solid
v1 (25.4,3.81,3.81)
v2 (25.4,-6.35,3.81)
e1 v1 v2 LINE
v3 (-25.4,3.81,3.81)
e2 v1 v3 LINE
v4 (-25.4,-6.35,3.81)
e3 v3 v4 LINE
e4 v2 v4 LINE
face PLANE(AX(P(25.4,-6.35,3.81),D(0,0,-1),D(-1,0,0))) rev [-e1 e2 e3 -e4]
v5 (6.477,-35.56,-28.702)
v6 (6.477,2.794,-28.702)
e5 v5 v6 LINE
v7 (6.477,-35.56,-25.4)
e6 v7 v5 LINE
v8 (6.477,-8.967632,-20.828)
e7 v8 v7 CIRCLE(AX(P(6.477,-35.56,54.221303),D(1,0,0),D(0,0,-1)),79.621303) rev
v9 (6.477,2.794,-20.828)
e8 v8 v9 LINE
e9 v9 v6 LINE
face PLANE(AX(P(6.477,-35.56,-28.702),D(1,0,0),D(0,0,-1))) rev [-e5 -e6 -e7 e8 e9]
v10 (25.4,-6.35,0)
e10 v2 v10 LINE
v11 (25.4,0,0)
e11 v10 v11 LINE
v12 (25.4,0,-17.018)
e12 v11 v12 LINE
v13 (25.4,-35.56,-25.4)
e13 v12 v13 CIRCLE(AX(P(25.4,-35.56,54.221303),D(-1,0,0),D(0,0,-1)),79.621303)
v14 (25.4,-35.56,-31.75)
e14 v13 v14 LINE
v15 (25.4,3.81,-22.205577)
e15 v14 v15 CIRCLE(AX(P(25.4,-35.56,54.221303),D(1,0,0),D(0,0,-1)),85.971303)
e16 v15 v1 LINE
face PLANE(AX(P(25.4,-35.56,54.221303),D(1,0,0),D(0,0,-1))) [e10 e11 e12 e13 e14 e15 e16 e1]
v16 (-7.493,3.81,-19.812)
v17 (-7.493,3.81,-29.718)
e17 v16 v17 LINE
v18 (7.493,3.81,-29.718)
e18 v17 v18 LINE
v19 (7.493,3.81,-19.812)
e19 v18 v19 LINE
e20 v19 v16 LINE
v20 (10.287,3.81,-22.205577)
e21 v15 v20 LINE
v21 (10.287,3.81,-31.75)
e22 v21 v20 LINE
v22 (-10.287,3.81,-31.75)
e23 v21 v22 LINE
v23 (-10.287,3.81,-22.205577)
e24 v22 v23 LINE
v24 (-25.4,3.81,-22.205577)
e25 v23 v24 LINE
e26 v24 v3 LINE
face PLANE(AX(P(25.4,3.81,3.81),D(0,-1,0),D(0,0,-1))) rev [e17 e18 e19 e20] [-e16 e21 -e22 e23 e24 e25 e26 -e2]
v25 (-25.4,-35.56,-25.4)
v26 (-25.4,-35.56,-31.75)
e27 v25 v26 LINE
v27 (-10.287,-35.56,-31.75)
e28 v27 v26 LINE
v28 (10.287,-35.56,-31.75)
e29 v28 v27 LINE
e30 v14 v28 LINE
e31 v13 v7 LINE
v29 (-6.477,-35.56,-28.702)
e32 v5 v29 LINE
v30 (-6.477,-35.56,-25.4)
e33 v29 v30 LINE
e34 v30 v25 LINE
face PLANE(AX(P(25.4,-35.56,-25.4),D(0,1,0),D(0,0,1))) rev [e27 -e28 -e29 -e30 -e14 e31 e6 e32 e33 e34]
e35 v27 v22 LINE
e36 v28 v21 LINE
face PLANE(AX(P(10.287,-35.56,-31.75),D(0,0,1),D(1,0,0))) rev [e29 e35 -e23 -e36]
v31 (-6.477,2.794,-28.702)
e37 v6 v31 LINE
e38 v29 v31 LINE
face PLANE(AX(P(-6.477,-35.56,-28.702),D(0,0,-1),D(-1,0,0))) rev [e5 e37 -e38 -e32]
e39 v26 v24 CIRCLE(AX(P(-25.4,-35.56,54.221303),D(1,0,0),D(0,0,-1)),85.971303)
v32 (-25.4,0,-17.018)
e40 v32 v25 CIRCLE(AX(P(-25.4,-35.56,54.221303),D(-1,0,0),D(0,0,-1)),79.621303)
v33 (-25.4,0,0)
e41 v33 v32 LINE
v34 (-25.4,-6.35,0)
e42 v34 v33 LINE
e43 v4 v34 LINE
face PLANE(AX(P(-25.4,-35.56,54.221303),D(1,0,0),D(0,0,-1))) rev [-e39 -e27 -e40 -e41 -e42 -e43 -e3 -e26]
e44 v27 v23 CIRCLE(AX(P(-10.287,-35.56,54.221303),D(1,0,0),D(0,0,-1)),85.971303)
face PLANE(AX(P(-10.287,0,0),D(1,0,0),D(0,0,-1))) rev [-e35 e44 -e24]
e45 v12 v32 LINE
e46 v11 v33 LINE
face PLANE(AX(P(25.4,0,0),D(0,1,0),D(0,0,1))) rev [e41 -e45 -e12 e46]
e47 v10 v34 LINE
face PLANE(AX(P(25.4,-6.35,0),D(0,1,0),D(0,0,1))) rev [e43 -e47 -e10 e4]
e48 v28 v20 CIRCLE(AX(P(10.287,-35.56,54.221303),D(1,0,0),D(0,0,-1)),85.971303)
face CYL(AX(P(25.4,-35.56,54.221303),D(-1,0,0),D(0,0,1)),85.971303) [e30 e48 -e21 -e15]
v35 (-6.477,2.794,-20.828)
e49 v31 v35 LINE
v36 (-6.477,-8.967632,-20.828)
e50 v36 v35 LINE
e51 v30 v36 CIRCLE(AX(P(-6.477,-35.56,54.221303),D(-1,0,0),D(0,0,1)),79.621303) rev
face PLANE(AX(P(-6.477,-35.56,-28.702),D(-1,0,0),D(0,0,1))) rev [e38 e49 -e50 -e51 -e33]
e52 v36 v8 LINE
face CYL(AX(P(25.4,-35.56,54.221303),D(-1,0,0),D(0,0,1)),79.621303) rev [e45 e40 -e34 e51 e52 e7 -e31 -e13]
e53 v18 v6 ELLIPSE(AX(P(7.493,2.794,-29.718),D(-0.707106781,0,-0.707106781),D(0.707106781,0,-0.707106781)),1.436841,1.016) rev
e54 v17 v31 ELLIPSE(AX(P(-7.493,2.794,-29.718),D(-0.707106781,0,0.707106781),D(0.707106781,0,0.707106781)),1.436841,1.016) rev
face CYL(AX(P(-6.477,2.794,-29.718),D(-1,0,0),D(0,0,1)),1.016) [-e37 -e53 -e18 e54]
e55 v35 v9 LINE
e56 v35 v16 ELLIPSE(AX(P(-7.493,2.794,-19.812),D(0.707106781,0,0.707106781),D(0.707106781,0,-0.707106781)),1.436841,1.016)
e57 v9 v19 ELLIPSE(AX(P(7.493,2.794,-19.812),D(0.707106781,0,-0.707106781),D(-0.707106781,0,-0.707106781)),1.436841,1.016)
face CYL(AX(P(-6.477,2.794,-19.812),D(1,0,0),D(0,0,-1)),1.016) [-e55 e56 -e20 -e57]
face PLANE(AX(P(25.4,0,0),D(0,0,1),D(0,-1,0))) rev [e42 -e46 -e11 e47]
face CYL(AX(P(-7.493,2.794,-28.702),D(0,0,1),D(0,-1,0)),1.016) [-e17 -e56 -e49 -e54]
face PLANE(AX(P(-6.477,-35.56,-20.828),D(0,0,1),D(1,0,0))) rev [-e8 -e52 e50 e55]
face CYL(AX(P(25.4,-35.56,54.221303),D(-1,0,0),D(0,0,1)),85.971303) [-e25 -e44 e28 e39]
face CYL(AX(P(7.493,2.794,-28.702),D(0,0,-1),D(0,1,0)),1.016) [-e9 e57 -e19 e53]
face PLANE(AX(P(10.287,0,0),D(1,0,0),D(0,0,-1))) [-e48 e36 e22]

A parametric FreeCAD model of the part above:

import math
import FreeCAD as App
import Part
import Sketcher
from FreeCAD import Vector
Q = App.Units.Quantity


def edges_at(feature, points):
    """Names of the edges that pass closest to the given points."""
    edges = feature.Shape.Edges
    near = lambda p: min(range(len(edges)), key=lambda i: edges[i].distToShape(Part.Vertex(*p))[0])
    return sorted({f"Edge{near(p) + 1}" for p in points})


def add_polygon(sketch, points):
    """Adds a closed chain of lines whose ends are joined by coincident constraints."""
    first, n = sketch.GeometryCount, len(points)
    for a, b in zip(points, points[1:] + points[:1]):
        sketch.addGeometry(Part.LineSegment(App.Vector(*a, 0), App.Vector(*b, 0)), False)
    for i in range(n):
        sketch.addConstraint(Sketcher.Constraint("Coincident", first + i, 2, first + (i + 1) % n, 1))

doc = App.newDocument("Part")
params = doc.addObject("Spreadsheet::Sheet", "Params")
for row, (alias, value) in enumerate([
    ("sketch1_width", "0.4 in"),
    ("sketch1_width2", "0.25 in"),
    ("sketch1_height", "0.67 in"),
    ("sketch1_height2", "0.15 in"),
    ("pad1_length", "2 in"),
    ("sketch2_width", "1.55 in"),
    ("pad2_length", "0.81 in"),
    ("sketch3_width", "0.51 in"),
    ("sketch3_height", "0.31 in"),
    ("fillet_radius", "0.04 in"),
], start=1):
    params.set(f"A{row}", alias)
    params.set(f"B{row}", "=" + value)
    params.setAlias(f"B{row}", alias)

body = doc.addObject("PartDesign::Body", "Body")

# Sketch on YZ plane
sketch1 = body.newObject("Sketcher::SketchObject", "Sketch")
sketch1.AttachmentSupport = (doc.getObject("YZ_Plane"), [""])
sketch1.MapMode = "FlatFace"
sketch1.addGeometry([
    Part.LineSegment(Vector(-6.3, 0, 0), Vector(0, 0, 0)),  # 0
    Part.LineSegment(Vector(0, 0, 0), Vector(0, -17, 0)),  # 1
    Part.ArcOfCircle(Part.Circle(Vector(-35.6, 54.2, 0), Vector(0, 0, 1), 79.6), math.radians(-90), math.radians(-63)),  # 2
    Part.LineSegment(Vector(-35.6, -25.4, 0), Vector(-35.6, -31.8, 0)),  # 3
    Part.ArcOfCircle(Part.Circle(Vector(-35.6, 54.2, 0), Vector(0, 0, 1), 86), math.radians(-90), math.radians(-63)),  # 4
    Part.LineSegment(Vector(3.8, -22.2, 0), Vector(3.8, 3.8, 0)),  # 5
    Part.LineSegment(Vector(3.8, 3.8, 0), Vector(-6.3, 3.8, 0)),  # 6
    Part.LineSegment(Vector(-6.3, 3.8, 0), Vector(-6.3, 0, 0)),  # 7
], False)
sketch1.addConstraint([
    Sketcher.Constraint("Coincident", 0, 2, 1, 1),
    Sketcher.Constraint("Coincident", 1, 2, 2, 2),
    Sketcher.Constraint("Coincident", 2, 1, 3, 1),
    Sketcher.Constraint("Coincident", 3, 2, 4, 1),
    Sketcher.Constraint("Coincident", 4, 2, 5, 1),
    Sketcher.Constraint("Coincident", 5, 2, 6, 1),
    Sketcher.Constraint("Coincident", 6, 2, 7, 1),
    Sketcher.Constraint("Coincident", 7, 2, 0, 1),
    Sketcher.Constraint("Horizontal", 0),
    Sketcher.Constraint("Vertical", 1),
    Sketcher.Constraint("Vertical", 3),
    Sketcher.Constraint("Vertical", 5),
    Sketcher.Constraint("Horizontal", 6),
    Sketcher.Constraint("Vertical", 7),
    Sketcher.Constraint("Coincident", 0, 2, -1, 1),
    Sketcher.Constraint("Coincident", 4, 3, 2, 3),
    Sketcher.Constraint("Vertical", 4, 3, 2, 1),
    Sketcher.Constraint("Equal", 0, 3),
    Sketcher.Constraint("DistanceX", 6, 2, 6, 1, Q("0.4 in")),
    Sketcher.Constraint("DistanceY", 2, 1, -1, 1, Q("1 in")),
    Sketcher.Constraint("DistanceX", 0, 1, 0, 2, Q("0.25 in")),
    Sketcher.Constraint("DistanceY", 1, 2, 1, 1, Q("0.67 in")),
    Sketcher.Constraint("DistanceY", 7, 2, 7, 1, Q("0.15 in")),
    Sketcher.Constraint("DistanceX", 2, 3, -1, 1, Q("1.4 in")),
])
sketch1.setExpression("Constraints[18]", "Params.sketch1_width")
sketch1.setExpression("Constraints[20]", "Params.sketch1_width2")
sketch1.setExpression("Constraints[21]", "Params.sketch1_height")
sketch1.setExpression("Constraints[22]", "Params.sketch1_height2")
pad1 = body.newObject("PartDesign::Pad", "Pad")
pad1.Profile = sketch1
pad1.setExpression("Length", "Params.pad1_length")
pad1.Midplane = True

# Sketch on YZ plane
sketch2 = body.newObject("Sketcher::SketchObject", "Sketch001")
sketch2.AttachmentSupport = (doc.getObject("YZ_Plane"), [""])
sketch2.MapMode = "FlatFace"
add_polygon(sketch2, [(-36, -32), (4, -32), (4, -22)])  # lines 0-2
sketch2.addConstraint([
    Sketcher.Constraint("Horizontal", 0),
    Sketcher.Constraint("Vertical", 1),
    Sketcher.Constraint("DistanceX", 0, 1, 0, 2, Q("1.55 in")),
    Sketcher.Constraint("DistanceX", 2, 2, -1, 1, Q("1.4 in")),
    Sketcher.Constraint("DistanceY", 0, 2, -1, 1, Q("1.25 in")),
    Sketcher.Constraint("DistanceY", 1, 1, 1, 2, 9.544423),
])
sketch2.setExpression("Constraints[5]", "Params.sketch2_width")
pad2 = body.newObject("PartDesign::Pad", "Pad001")
pad2.Profile = sketch2
pad2.setExpression("Length", "Params.pad2_length")
pad2.Midplane = True

# Sketch on XZ plane
sketch3 = body.newObject("Sketcher::SketchObject", "Sketch002")
sketch3.AttachmentSupport = (doc.getObject("XZ_Plane"), [""])
sketch3.MapMode = "FlatFace"
sketch3.AttachmentOffset = App.Placement(Vector(0, 0, -0.15 * 25.4), App.Rotation())
add_polygon(sketch3, [(-6, -29), (-6, -21), (6, -21), (6, -29)])  # lines 0-3
sketch3.addConstraint([
    Sketcher.Constraint("Vertical", 0),
    Sketcher.Constraint("Horizontal", 1),
    Sketcher.Constraint("Vertical", 2),
    Sketcher.Constraint("Horizontal", 3),
    Sketcher.Constraint("DistanceX", 1, 1, 1, 2, Q("0.51 in")),
    Sketcher.Constraint("DistanceY", 0, 1, 0, 2, Q("0.31 in")),
    Sketcher.Constraint("DistanceY", 0, 2, -1, 1, Q("0.82 in")),
    Sketcher.Constraint("DistanceX", 0, 2, -1, 1, Q("0.255 in")),
])
sketch3.setExpression("Constraints[8]", "Params.sketch3_width")
sketch3.setExpression("Constraints[9]", "Params.sketch3_height")
pocket1 = body.newObject("PartDesign::Pocket", "Pocket")
pocket1.Profile = sketch3
pocket1.Type = "ThroughAll"
pocket1.Reversed = True
doc.recompute()

fillet = body.newObject("PartDesign::Fillet", "Fillet")
fillet.Base = (pocket1, edges_at(pocket1, [
    (-6.477, 3.81, -24.765),
    (0, 3.81, -20.828),
    (6.477, 3.81, -24.765),
    (0, 3.81, -28.702),
]))
fillet.setExpression("Radius", "Params.fillet_radius")

doc.recompute()
